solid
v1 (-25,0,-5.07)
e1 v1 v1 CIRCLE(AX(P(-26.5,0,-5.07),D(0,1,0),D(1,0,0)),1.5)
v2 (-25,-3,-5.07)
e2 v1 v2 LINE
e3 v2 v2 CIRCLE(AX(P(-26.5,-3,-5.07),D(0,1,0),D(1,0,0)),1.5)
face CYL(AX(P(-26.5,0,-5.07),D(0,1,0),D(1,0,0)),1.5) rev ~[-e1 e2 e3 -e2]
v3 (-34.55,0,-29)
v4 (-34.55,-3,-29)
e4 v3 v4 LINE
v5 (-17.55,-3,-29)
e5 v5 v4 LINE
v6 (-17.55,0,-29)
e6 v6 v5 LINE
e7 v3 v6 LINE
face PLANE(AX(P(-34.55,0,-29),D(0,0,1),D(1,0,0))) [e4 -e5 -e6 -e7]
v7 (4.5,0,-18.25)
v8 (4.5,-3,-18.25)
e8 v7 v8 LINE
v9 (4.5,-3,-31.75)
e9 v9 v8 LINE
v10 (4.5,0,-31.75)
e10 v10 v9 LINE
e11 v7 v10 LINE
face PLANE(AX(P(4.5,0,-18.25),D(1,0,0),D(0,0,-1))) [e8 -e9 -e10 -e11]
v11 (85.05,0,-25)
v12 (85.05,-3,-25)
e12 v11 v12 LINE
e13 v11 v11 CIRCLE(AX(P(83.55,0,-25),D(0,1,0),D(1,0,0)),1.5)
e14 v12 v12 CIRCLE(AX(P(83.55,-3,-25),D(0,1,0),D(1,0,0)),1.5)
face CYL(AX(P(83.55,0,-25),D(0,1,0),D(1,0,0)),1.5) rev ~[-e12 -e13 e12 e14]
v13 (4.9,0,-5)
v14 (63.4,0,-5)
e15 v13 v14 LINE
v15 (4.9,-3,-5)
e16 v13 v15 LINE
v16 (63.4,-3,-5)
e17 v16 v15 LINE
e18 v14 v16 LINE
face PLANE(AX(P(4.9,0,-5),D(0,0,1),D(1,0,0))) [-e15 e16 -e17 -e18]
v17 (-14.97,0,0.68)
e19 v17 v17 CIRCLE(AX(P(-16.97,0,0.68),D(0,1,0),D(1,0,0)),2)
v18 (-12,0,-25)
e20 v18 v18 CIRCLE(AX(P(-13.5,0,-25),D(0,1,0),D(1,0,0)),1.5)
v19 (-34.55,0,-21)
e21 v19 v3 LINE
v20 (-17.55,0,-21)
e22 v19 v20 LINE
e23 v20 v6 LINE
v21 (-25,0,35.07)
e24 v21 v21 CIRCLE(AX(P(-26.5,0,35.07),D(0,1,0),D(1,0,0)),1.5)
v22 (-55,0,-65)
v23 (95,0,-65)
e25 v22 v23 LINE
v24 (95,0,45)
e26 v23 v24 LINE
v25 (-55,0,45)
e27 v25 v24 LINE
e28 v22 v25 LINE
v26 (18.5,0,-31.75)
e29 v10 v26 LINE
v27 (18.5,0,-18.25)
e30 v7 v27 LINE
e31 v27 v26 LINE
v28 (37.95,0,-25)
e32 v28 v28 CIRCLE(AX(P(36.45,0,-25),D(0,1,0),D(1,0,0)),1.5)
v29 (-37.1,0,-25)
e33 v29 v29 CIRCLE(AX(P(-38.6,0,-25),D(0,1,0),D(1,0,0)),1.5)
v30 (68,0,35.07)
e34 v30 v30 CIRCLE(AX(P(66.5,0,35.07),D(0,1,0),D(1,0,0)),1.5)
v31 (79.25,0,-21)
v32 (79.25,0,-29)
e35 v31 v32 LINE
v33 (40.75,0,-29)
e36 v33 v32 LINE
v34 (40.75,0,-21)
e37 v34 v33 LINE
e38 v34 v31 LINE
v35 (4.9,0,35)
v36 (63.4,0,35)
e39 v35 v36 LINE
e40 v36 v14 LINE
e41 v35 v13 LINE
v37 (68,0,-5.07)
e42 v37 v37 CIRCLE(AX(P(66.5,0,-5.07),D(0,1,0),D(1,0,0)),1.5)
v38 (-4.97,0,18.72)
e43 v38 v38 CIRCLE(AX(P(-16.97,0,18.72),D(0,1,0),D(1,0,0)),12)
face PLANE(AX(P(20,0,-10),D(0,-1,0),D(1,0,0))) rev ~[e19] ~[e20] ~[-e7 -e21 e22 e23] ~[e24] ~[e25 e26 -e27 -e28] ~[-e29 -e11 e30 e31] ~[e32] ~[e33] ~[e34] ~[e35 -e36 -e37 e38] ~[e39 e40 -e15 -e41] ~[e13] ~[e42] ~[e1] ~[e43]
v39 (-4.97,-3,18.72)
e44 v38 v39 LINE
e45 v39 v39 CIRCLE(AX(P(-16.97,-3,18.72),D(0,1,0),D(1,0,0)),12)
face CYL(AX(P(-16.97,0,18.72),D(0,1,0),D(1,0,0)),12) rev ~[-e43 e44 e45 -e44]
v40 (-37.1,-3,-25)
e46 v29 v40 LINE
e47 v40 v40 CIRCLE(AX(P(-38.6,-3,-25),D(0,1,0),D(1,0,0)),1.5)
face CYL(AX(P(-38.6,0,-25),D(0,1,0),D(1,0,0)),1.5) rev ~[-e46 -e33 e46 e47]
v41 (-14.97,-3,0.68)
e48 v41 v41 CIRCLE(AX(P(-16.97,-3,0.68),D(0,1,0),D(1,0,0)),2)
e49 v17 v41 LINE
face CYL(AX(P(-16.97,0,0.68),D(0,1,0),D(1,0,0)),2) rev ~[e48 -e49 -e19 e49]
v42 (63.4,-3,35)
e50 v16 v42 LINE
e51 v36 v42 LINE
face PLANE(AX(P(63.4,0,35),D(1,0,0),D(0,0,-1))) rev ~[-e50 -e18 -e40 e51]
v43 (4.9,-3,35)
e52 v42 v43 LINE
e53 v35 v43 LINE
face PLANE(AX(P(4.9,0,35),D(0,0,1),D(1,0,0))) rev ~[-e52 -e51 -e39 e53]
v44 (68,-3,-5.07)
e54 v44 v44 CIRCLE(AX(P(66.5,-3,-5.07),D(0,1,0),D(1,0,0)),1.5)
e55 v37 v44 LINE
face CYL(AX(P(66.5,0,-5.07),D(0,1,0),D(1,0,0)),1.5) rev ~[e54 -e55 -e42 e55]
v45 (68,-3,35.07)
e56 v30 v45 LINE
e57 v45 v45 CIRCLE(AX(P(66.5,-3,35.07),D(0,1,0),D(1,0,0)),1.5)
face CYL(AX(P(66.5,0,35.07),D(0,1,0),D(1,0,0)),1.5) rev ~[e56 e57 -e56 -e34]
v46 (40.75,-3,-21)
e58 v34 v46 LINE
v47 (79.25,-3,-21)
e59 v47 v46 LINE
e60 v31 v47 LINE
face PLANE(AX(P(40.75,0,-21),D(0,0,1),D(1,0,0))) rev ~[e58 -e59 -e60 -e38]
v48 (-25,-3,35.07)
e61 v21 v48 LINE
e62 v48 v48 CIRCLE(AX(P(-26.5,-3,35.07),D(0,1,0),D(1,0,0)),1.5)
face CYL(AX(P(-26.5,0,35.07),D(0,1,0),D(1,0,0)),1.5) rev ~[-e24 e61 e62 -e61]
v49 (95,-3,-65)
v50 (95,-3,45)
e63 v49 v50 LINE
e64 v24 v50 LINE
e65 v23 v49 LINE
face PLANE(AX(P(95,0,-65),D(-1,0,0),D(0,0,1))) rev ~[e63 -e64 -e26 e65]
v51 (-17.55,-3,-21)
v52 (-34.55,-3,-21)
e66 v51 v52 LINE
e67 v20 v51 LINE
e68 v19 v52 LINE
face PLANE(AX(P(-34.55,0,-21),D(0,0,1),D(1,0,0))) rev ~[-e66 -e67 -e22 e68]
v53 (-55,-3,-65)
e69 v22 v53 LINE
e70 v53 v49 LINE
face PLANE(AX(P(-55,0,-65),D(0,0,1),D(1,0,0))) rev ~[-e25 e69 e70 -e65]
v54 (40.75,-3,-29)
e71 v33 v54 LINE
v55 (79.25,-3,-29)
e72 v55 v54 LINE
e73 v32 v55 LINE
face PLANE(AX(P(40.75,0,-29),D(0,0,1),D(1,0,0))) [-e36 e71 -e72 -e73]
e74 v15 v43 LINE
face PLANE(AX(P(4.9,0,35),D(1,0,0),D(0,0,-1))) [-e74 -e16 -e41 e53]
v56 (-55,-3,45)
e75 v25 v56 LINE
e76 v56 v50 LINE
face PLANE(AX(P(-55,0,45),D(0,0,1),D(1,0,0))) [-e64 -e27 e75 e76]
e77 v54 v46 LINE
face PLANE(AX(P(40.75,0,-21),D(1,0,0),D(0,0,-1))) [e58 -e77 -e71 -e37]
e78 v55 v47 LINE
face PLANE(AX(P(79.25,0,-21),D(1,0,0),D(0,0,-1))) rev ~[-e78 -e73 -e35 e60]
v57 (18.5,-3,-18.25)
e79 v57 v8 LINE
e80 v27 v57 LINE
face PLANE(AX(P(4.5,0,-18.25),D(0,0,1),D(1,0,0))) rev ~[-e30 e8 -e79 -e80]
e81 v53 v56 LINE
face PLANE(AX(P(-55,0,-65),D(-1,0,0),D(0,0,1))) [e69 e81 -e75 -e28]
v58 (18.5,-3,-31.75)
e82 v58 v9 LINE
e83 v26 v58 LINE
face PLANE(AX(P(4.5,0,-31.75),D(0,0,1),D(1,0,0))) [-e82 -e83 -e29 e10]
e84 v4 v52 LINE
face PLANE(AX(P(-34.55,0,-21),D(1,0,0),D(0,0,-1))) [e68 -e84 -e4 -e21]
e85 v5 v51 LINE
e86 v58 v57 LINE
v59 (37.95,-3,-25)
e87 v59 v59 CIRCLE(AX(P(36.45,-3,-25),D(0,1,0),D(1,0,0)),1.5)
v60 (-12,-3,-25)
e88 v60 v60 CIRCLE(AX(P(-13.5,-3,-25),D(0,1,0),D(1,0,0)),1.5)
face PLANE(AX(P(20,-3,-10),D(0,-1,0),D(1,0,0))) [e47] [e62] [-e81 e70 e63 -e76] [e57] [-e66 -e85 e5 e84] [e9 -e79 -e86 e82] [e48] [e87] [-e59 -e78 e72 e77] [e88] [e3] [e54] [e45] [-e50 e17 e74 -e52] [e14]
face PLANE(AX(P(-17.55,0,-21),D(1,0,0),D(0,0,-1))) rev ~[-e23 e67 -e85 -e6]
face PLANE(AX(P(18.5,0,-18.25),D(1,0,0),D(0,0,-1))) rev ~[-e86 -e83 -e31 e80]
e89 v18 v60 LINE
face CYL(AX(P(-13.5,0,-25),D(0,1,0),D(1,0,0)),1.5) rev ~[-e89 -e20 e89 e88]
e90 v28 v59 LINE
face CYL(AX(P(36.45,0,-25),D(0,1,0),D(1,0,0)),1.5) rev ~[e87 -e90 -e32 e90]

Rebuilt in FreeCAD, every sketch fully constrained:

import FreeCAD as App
import Part
import Sketcher

V = App.Vector


def add_polygon(sketch, points):
    """Adds a closed chain of lines whose ends are joined by coincident constraints."""
    first, n = sketch.GeometryCount, len(points)
    for a, b in zip(points, points[1:] + points[:1]):
        sketch.addGeometry(Part.LineSegment(App.Vector(*a, 0), App.Vector(*b, 0)), False)
    for i in range(n):
        sketch.addConstraint(Sketcher.Constraint("Coincident", first + i, 2, first + (i + 1) % n, 1))

doc = App.newDocument("Part")
body = doc.addObject("PartDesign::Body", "Body")

# Sketch on XZ plane
sketch1 = body.newObject("Sketcher::SketchObject", "Sketch")
sketch1.AttachmentSupport = (doc.getObject("XZ_Plane"), [""])
sketch1.MapMode = "FlatFace"
add_polygon(sketch1, [(-55, 45), (-55, -65), (95, -65), (95, 45)])  # lines 0-3
sketch1.addConstraint(Sketcher.Constraint("Vertical", 0))
sketch1.addConstraint(Sketcher.Constraint("Horizontal", 1))
sketch1.addConstraint(Sketcher.Constraint("Vertical", 2))
sketch1.addConstraint(Sketcher.Constraint("Horizontal", 3))
sketch1.addConstraint(Sketcher.Constraint("DistanceX", 1, 1, 1, 2, 150.0))
sketch1.addConstraint(Sketcher.Constraint("DistanceY", 0, 2, 0, 1, 110.0))
sketch1.addConstraint(Sketcher.Constraint("DistanceX", 0, 2, -1, 1, 55.0))
sketch1.addConstraint(Sketcher.Constraint("DistanceY", 0, 2, -1, 1, 65.0))
pad1 = body.newObject("PartDesign::Pad", "Pad")
pad1.Profile = sketch1
pad1.Length = 3

# Sketch on XZ plane
sketch2 = body.newObject("Sketcher::SketchObject", "Sketch001")
sketch2.AttachmentSupport = (doc.getObject("XZ_Plane"), [""])
sketch2.MapMode = "FlatFace"
sketch2.addGeometry(Part.Circle(V(-26.5, -5.07, 0), V(0, 0, 1), 1.5), False)  # 0
sketch2.addGeometry(Part.Circle(V(-26.5, 35.07, 0), V(0, 0, 1), 1.5), False)  # 1
sketch2.addGeometry(Part.Circle(V(66.5, 35.07, 0), V(0, 0, 1), 1.5), False)  # 2
sketch2.addGeometry(Part.Circle(V(66.5, -5.07, 0), V(0, 0, 1), 1.5), False)  # 3
sketch2.addGeometry(Part.Circle(V(-16.97, 18.72, 0), V(0, 0, 1), 12), False)  # 4
sketch2.addGeometry(Part.Circle(V(-16.97, 0.68, 0), V(0, 0, 1), 2), False)  # 5
add_polygon(sketch2, [(4.9, -5), (4.9, 35), (63.4, 35), (63.4, -5)])  # lines 6-9
sketch2.addConstraint(Sketcher.Constraint("Vertical", 6))
sketch2.addConstraint(Sketcher.Constraint("Horizontal", 7))
sketch2.addConstraint(Sketcher.Constraint("Vertical", 8))
sketch2.addConstraint(Sketcher.Constraint("Horizontal", 9))
sketch2.addConstraint(Sketcher.Constraint("Equal", 0, 1))
sketch2.addConstraint(Sketcher.Constraint("Equal", 1, 2))
sketch2.addConstraint(Sketcher.Constraint("Equal", 2, 3))
sketch2.addConstraint(Sketcher.Constraint("Horizontal", 1, 3, 2, 3))
sketch2.addConstraint(Sketcher.Constraint("Horizontal", 0, 3, 3, 3))
sketch2.addConstraint(Sketcher.Constraint("Vertical", 0, 3, 1, 3))
sketch2.addConstraint(Sketcher.Constraint("Vertical", 2, 3, 3, 3))
sketch2.addConstraint(Sketcher.Constraint("Vertical", 4, 3, 5, 3))
sketch2.addConstraint(Sketcher.Constraint("Diameter", 0, 3.0))
sketch2.addConstraint(Sketcher.Constraint("Diameter", 4, 24.0))
sketch2.addConstraint(Sketcher.Constraint("Diameter", 5, 4.0))
sketch2.addConstraint(Sketcher.Constraint("DistanceY", 6, 1, 6, 2, 40.0))
sketch2.addConstraint(Sketcher.Constraint("DistanceX", 7, 1, 7, 2, 58.5))
sketch2.addConstraint(Sketcher.Constraint("DistanceY", -1, 1, 6, 2, 35.0))
sketch2.addConstraint(Sketcher.Constraint("DistanceX", 1, 3, 2, 3, 93.0))
sketch2.addConstraint(Sketcher.Constraint("DistanceX", 0, 3, -1, 1, 26.5))
sketch2.addConstraint(Sketcher.Constraint("DistanceX", -1, 1, 6, 2, 4.9))
sketch2.addConstraint(Sketcher.Constraint("DistanceY", 0, 3, -1, 1, 5.07))
sketch2.addConstraint(Sketcher.Constraint("DistanceY", -1, 1, 1, 3, 35.07))
sketch2.addConstraint(Sketcher.Constraint("DistanceX", 4, 3, -1, 1, 16.97))
sketch2.addConstraint(Sketcher.Constraint("DistanceY", -1, 1, 4, 3, 18.72))
sketch2.addConstraint(Sketcher.Constraint("DistanceY", -1, 1, 5, 3, 0.68))
pocket1 = body.newObject("PartDesign::Pocket", "Pocket")
pocket1.Profile = sketch2
pocket1.Type = "ThroughAll"
pocket1.Reversed = True

# Sketch on XZ plane
sketch3 = body.newObject("Sketcher::SketchObject", "Sketch002")
sketch3.AttachmentSupport = (doc.getObject("XZ_Plane"), [""])
sketch3.MapMode = "FlatFace"
sketch3.addGeometry(Part.Circle(V(36.45, -25, 0), V(0, 0, 1), 1.5), False)  # 0
sketch3.addGeometry(Part.Circle(V(83.55, -25, 0), V(0, 0, 1), 1.5), False)  # 1
sketch3.addGeometry(Part.Circle(V(-38.6, -25, 0), V(0, 0, 1), 1.5), False)  # 2
sketch3.addGeometry(Part.Circle(V(-13.5, -25, 0), V(0, 0, 1), 1.5), False)  # 3
add_polygon(sketch3, [(40.75, -29), (40.75, -21), (79.25, -21), (79.25, -29)])  # lines 4-7
add_polygon(sketch3, [(4.5, -31.75), (4.5, -18.25), (18.5, -18.25), (18.5, -31.75)])  # lines 8-11
add_polygon(sketch3, [(-34.55, -29), (-34.55, -21), (-17.55, -21), (-17.55, -29)])  # lines 12-15
sketch3.addConstraint(Sketcher.Constraint("Vertical", 4))
sketch3.addConstraint(Sketcher.Constraint("Horizontal", 5))
sketch3.addConstraint(Sketcher.Constraint("Vertical", 6))
sketch3.addConstraint(Sketcher.Constraint("Horizontal", 7))
sketch3.addConstraint(Sketcher.Constraint("Vertical", 8))
sketch3.addConstraint(Sketcher.Constraint("Horizontal", 9))
sketch3.addConstraint(Sketcher.Constraint("Vertical", 10))
sketch3.addConstraint(Sketcher.Constraint("Horizontal", 11))
sketch3.addConstraint(Sketcher.Constraint("Vertical", 12))
sketch3.addConstraint(Sketcher.Constraint("Horizontal", 13))
sketch3.addConstraint(Sketcher.Constraint("Vertical", 14))
sketch3.addConstraint(Sketcher.Constraint("Horizontal", 15))
sketch3.addConstraint(Sketcher.Constraint("Equal", 0, 1))
sketch3.addConstraint(Sketcher.Constraint("Equal", 1, 2))
sketch3.addConstraint(Sketcher.Constraint("Equal", 2, 3))
sketch3.addConstraint(Sketcher.Constraint("Horizontal", 0, 3, 1, 3))
sketch3.addConstraint(Sketcher.Constraint("Horizontal", 1, 3, 2, 3))
sketch3.addConstraint(Sketcher.Constraint("Horizontal", 2, 3, 3, 3))
sketch3.addConstraint(Sketcher.Constraint("Horizontal", 5, 2, 12, 2))
sketch3.addConstraint(Sketcher.Constraint("Horizontal", 7, 2, 14, 2))
sketch3.addConstraint(Sketcher.Constraint("Diameter", 0, 3.0))
sketch3.addConstraint(Sketcher.Constraint("DistanceX", 9, 1, 9, 2, 14.0))
sketch3.addConstraint(Sketcher.Constraint("DistanceX", 13, 1, 13, 2, 17.0))
sketch3.addConstraint(Sketcher.Constraint("DistanceY", 4, 1, 4, 2, 8.0))
sketch3.addConstraint(Sketcher.Constraint("DistanceX", 5, 1, 5, 2, 38.5))
sketch3.addConstraint(Sketcher.Constraint("DistanceY", 8, 1, 8, 2, 13.5))
sketch3.addConstraint(Sketcher.Constraint("DistanceY", 0, 3, -1, 1, 25.0))
sketch3.addConstraint(Sketcher.Constraint("DistanceY", 4, 2, -1, 1, 21.0))
sketch3.addConstraint(Sketcher.Constraint("DistanceX", 3, 3, 8, 2, 18.0))
sketch3.addConstraint(Sketcher.Constraint("DistanceX", 2, 3, -1, 1, 38.6))
sketch3.addConstraint(Sketcher.Constraint("DistanceX", 3, 3, -1, 1, 13.5))
sketch3.addConstraint(Sketcher.Constraint("DistanceX", 0, 3, 1, 3, 47.1))
sketch3.addConstraint(Sketcher.Constraint("DistanceX", 0, 3, 4, 2, 4.3))
sketch3.addConstraint(Sketcher.Constraint("DistanceX", -1, 1, 0, 3, 36.45))
sketch3.addConstraint(Sketcher.Constraint("DistanceY", 8, 2, -1, 1, 18.25))
sketch3.addConstraint(Sketcher.Constraint("DistanceX", 12, 2, -1, 1, 34.55))
pocket2 = body.newObject("PartDesign::Pocket", "Pocket001")
pocket2.Profile = sketch3
pocket2.Type = "ThroughAll"
pocket2.Reversed = True

doc.recompute()
